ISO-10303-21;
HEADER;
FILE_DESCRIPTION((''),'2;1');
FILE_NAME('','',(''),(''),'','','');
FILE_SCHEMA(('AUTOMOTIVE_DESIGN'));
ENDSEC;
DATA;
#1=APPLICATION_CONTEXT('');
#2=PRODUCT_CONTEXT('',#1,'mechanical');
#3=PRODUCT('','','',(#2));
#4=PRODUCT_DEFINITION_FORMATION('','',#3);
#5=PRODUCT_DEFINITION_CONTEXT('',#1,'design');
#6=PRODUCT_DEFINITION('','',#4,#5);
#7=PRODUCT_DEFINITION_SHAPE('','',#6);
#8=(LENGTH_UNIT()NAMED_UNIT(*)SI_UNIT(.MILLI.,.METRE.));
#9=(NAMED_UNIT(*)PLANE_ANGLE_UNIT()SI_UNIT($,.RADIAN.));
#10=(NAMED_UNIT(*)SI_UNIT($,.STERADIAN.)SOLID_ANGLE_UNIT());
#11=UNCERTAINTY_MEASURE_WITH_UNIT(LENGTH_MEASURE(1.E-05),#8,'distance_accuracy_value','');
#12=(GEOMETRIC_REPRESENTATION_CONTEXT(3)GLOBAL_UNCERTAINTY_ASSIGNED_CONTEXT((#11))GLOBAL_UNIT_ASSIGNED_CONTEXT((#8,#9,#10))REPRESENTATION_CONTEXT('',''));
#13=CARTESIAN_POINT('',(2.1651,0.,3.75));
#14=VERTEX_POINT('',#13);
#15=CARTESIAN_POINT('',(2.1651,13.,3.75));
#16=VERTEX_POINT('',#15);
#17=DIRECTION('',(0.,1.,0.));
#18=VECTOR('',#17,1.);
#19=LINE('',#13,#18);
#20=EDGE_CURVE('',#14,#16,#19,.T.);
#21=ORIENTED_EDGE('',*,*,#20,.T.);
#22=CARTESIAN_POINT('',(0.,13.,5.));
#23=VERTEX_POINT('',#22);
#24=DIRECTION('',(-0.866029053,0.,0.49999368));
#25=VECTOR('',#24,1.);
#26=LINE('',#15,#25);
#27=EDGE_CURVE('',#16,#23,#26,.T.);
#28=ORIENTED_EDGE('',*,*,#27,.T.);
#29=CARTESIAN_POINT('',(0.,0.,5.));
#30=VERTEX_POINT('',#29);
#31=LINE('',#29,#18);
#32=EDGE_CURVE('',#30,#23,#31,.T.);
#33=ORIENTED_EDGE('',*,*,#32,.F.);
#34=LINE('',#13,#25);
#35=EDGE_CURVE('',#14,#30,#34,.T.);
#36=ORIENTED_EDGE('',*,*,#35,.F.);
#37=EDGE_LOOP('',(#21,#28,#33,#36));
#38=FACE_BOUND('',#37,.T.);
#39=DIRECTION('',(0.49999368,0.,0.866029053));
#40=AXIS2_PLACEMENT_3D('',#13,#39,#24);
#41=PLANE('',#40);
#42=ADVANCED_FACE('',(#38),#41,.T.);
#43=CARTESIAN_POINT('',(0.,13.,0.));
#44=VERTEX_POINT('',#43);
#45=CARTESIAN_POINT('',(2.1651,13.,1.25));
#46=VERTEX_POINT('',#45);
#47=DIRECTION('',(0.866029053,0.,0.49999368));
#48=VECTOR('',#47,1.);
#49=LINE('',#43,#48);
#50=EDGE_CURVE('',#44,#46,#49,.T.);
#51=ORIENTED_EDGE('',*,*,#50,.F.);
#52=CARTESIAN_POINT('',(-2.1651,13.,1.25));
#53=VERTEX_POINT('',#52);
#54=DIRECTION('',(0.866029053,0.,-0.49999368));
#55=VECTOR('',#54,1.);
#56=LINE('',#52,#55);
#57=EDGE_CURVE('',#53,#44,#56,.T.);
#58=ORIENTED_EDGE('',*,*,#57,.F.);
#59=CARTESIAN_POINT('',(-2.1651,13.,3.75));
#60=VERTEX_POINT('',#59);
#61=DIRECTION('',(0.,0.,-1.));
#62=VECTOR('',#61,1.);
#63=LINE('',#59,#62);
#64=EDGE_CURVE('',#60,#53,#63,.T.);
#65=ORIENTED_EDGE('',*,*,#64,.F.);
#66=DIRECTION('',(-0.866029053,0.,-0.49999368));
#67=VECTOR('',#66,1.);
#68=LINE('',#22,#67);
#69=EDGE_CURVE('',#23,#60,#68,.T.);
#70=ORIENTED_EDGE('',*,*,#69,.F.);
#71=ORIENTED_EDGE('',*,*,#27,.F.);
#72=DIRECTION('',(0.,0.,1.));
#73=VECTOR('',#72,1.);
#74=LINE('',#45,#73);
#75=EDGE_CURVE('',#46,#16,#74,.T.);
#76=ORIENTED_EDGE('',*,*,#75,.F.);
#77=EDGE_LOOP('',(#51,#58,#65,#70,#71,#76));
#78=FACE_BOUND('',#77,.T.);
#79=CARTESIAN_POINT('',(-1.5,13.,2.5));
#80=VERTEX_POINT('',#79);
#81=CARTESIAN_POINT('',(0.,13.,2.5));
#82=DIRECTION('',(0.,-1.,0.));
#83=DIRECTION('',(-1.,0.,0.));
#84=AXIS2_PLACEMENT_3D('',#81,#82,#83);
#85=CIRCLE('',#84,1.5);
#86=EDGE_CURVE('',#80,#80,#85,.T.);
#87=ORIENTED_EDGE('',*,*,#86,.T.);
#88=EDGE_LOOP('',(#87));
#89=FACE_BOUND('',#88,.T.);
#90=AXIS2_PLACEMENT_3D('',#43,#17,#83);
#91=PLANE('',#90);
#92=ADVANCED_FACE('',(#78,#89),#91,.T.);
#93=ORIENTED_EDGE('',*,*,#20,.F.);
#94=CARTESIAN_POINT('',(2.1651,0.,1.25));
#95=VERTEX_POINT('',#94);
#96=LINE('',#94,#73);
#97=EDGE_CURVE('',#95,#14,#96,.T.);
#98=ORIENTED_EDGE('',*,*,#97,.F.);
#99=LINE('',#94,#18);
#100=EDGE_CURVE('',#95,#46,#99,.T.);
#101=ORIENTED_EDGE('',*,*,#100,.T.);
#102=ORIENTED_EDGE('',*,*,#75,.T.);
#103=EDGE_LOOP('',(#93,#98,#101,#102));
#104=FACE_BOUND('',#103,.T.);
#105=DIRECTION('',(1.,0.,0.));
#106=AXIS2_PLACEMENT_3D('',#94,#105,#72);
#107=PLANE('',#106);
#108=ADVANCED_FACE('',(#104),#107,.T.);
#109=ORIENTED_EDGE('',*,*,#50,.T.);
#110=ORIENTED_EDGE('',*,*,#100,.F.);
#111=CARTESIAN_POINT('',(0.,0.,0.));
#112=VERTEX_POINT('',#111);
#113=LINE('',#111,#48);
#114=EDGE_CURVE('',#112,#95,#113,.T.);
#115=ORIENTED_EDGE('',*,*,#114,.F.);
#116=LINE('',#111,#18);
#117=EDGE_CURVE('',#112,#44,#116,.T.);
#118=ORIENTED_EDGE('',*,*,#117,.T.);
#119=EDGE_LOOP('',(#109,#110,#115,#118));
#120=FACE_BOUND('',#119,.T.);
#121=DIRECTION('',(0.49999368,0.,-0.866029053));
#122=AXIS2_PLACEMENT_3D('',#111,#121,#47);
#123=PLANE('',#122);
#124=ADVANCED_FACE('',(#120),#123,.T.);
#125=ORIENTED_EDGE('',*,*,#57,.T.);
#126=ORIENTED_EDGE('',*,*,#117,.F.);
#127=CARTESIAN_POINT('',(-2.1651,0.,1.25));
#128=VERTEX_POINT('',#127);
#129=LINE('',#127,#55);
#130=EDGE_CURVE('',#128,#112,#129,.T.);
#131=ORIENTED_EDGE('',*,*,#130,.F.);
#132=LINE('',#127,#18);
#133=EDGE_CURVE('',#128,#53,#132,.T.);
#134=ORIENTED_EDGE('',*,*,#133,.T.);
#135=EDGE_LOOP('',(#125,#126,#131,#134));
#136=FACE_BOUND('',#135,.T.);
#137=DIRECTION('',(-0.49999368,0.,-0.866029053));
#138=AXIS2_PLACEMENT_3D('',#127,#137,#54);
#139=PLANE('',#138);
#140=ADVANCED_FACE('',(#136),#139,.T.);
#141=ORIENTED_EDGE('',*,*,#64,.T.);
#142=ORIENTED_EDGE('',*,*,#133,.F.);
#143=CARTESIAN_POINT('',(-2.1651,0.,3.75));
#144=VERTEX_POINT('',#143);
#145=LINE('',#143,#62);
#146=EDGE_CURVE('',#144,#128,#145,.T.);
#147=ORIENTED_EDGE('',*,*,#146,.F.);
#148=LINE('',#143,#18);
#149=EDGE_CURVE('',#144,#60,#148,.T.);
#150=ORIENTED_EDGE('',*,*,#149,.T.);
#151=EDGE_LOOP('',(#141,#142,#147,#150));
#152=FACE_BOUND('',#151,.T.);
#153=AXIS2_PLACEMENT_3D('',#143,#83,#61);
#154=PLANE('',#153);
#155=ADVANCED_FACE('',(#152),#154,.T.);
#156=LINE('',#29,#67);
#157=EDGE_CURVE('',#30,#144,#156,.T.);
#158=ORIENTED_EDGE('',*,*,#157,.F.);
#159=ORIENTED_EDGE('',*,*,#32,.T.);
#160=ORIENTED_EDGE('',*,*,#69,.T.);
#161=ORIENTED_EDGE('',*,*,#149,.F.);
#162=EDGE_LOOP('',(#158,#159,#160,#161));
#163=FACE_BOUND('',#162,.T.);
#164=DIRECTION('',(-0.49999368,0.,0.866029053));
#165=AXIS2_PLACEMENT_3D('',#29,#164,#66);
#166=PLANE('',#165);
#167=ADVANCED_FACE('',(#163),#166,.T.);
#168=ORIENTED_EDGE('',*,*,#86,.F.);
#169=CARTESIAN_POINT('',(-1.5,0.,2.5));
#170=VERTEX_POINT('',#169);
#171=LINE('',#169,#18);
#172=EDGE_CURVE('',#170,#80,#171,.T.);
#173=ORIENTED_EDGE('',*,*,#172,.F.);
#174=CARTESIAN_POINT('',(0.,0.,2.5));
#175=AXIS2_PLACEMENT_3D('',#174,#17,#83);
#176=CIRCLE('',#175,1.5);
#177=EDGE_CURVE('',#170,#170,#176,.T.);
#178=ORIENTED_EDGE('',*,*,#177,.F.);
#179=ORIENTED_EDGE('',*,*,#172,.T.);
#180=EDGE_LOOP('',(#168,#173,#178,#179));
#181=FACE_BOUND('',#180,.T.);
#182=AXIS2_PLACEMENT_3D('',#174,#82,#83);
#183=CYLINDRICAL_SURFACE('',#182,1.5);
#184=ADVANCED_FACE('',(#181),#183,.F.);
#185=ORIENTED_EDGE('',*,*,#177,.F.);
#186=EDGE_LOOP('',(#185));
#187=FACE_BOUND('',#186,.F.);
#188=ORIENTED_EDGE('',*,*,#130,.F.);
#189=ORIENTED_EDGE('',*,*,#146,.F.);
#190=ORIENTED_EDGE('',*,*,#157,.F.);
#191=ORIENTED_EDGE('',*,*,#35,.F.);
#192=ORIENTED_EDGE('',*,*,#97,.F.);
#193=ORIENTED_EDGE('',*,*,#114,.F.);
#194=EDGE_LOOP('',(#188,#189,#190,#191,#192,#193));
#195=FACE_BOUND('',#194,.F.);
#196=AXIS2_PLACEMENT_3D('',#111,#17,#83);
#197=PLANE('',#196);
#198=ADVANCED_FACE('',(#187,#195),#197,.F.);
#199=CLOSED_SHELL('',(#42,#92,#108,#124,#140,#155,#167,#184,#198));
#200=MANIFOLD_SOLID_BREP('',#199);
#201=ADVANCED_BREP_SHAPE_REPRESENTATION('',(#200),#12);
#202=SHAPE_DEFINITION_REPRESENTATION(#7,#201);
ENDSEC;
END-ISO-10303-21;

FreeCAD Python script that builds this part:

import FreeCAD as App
import Part
import Sketcher
Q = App.Units.Quantity


def add_polygon(sketch, points):
    """Adds a closed chain of lines whose ends are joined by coincident constraints."""
    first, n = sketch.GeometryCount, len(points)
    for a, b in zip(points, points[1:] + points[:1]):
        sketch.addGeometry(Part.LineSegment(App.Vector(*a, 0), App.Vector(*b, 0)), False)
    for i in range(n):
        sketch.addConstraint(Sketcher.Constraint("Coincident", first + i, 2, first + (i + 1) % n, 1))

doc = App.newDocument("Part")
body = doc.addObject("PartDesign::Body", "Body")

sketch1 = doc.addObject("Sketcher::SketchObject", "Sketch")
body.addObject(sketch1)
sketch1.AttachmentSupport = (doc.XZ_Plane, [""])
sketch1.MapMode = "FlatFace"
add_polygon(sketch1, [(2.1651, 1.25), (0, 0), (-2.1651, 1.25), (-2.1651, 3.75), (0, 5), (2.1651, 3.75)])
sketch1.addGeometry(Part.Circle(App.Vector(0, 2.5, 0), App.Vector(0, 0, 1), 1.5), False)
sketch1.addConstraint([
    Sketcher.Constraint("Vertical", 2),
    Sketcher.Constraint("Vertical", 5),
    Sketcher.Constraint("Coincident", 0, 2, -1, 1),
    Sketcher.Constraint("Symmetric", 2, 2, 4, 2, -2),
    Sketcher.Constraint("PointOnObject", 6, 3, -2),
    Sketcher.Constraint("PointOnObject", 3, 2, -2),
    Sketcher.Constraint("Parallel", 0, 3),
    Sketcher.Constraint("Parallel", 1, 4),
    Sketcher.Constraint("Diameter", 6, Q("3 mm")),
    Sketcher.Constraint("DistanceY", -1, 1, 3, 2, Q("5 mm")),
    Sketcher.Constraint("Angle", 0, Q("-150.0004 deg")),
    Sketcher.Constraint("DistanceY", 2, 1, 2, 2, Q("2.5 mm")),
    Sketcher.Constraint("DistanceY", -1, 1, 6, 3, Q("2.5 mm")),
])
pad1 = doc.addObject("PartDesign::Pad", "Pad")
body.addObject(pad1)
pad1.Profile = sketch1
pad1.Length = 13
pad1.Reversed = True

doc.recompute()
